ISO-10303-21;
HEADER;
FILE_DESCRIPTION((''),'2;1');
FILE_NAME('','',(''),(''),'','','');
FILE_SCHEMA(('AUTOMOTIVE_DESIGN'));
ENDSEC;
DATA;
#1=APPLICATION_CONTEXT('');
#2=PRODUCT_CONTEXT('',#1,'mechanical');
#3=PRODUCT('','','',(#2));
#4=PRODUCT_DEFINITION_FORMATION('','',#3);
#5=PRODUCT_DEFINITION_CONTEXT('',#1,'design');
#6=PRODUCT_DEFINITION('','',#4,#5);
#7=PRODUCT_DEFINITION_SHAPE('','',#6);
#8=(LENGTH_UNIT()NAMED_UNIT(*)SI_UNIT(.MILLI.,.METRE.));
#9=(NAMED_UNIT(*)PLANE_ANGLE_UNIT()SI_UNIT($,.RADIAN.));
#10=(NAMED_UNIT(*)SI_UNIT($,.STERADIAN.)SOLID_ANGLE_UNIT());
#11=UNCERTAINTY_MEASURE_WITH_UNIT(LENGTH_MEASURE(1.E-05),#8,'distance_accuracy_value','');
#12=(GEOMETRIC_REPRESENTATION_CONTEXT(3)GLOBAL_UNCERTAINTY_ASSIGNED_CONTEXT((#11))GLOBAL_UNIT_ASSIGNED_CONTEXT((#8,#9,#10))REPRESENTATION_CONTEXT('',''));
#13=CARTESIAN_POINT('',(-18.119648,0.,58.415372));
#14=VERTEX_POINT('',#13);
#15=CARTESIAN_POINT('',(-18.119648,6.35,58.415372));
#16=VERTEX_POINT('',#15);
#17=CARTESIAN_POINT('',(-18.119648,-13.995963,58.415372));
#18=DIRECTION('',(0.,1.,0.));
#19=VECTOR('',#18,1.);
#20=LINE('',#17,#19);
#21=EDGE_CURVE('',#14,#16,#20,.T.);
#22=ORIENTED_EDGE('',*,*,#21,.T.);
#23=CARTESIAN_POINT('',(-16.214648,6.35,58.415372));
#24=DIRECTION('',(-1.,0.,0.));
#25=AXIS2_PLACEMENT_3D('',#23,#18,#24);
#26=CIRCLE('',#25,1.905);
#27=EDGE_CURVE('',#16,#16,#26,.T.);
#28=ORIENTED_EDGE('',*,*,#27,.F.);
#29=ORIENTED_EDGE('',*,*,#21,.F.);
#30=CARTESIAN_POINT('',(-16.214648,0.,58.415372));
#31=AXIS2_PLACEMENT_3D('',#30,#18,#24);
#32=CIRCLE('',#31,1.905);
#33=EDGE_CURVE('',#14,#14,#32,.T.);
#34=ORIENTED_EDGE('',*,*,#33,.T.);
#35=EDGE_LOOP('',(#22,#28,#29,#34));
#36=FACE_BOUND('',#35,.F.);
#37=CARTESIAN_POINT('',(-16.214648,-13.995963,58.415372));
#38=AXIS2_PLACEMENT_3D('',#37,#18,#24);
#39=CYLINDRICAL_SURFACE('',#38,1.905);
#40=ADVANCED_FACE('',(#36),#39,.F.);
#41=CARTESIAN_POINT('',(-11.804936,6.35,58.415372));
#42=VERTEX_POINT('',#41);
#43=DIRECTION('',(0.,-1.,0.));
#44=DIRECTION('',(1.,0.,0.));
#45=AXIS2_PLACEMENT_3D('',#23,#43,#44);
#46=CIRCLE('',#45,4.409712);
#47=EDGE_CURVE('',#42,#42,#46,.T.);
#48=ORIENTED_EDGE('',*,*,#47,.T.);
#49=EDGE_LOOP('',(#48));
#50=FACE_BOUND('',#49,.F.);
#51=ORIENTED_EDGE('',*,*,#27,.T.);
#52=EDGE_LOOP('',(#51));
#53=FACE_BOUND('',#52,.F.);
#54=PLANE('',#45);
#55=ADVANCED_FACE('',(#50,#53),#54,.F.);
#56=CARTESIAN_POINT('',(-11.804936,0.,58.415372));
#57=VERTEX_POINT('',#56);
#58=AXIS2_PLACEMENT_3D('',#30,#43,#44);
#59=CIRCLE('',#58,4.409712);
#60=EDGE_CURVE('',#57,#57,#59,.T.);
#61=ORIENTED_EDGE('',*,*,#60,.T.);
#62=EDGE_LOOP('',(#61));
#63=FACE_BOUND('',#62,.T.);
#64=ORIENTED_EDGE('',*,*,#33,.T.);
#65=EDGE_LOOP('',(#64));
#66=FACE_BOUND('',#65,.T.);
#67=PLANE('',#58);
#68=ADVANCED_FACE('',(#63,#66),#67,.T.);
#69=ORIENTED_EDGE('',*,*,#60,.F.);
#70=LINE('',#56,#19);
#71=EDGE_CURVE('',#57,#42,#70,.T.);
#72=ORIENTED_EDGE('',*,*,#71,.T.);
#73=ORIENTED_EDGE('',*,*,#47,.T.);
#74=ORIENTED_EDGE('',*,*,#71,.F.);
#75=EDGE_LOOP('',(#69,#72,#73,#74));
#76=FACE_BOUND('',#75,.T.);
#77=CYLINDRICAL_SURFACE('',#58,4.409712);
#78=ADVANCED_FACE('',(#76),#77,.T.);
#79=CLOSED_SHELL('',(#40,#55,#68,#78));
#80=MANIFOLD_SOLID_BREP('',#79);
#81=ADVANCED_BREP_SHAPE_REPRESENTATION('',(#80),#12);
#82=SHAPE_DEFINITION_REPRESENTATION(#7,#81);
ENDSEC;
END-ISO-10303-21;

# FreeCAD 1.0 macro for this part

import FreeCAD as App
import Part
import Sketcher

V = App.Vector
Q = App.Units.Quantity

doc = App.newDocument("Part")
body = doc.addObject("PartDesign::Body", "Body")

# Sketch on XZ plane
sketch1 = body.newObject("Sketcher::SketchObject", "Sketch")
sketch1.AttachmentSupport = (doc.getObject("XZ_Plane"), [""])
sketch1.MapMode = "FlatFace"
sketch1.addGeometry(Part.Circle(V(-16.2, 58.4, 0), V(0, 0, 1), 4.4), False)
sketch1.addConstraint(Sketcher.Constraint("Diameter", 0, Q("8.819424 mm")))
sketch1.addConstraint(Sketcher.Constraint("DistanceX", 0, 3, -1, 1, Q("16.214648 mm")))
sketch1.addConstraint(Sketcher.Constraint("DistanceY", -1, 1, 0, 3, Q("58.415372 mm")))
pad1 = body.newObject("PartDesign::Pad", "Pad")
pad1.Profile = sketch1
pad1.Length = Q("0.25 in")
pad1.Reversed = True

# Sketch on XZ plane
sketch2 = body.newObject("Sketcher::SketchObject", "Sketch001")
sketch2.AttachmentSupport = (doc.getObject("XZ_Plane"), [""])
sketch2.MapMode = "FlatFace"
sketch2.addGeometry(Part.Circle(V(-16.2, 58.4, 0), V(0, 0, 1), 1.9), False)
sketch2.addConstraint(Sketcher.Constraint("Diameter", 0, Q("0.15 in")))
sketch2.addConstraint(Sketcher.Constraint("DistanceX", 0, 3, -1, 1, Q("16.214648 mm")))
sketch2.addConstraint(Sketcher.Constraint("DistanceY", -1, 1, 0, 3, Q("58.415372 mm")))
doc.recompute()
hole = body.newObject("PartDesign::Hole", "Hole")
hole.Profile = sketch2
hole.ThreadType = "None"
hole.Diameter = Q("0.15 in")
hole.DepthType = "ThroughAll"

doc.recompute()
